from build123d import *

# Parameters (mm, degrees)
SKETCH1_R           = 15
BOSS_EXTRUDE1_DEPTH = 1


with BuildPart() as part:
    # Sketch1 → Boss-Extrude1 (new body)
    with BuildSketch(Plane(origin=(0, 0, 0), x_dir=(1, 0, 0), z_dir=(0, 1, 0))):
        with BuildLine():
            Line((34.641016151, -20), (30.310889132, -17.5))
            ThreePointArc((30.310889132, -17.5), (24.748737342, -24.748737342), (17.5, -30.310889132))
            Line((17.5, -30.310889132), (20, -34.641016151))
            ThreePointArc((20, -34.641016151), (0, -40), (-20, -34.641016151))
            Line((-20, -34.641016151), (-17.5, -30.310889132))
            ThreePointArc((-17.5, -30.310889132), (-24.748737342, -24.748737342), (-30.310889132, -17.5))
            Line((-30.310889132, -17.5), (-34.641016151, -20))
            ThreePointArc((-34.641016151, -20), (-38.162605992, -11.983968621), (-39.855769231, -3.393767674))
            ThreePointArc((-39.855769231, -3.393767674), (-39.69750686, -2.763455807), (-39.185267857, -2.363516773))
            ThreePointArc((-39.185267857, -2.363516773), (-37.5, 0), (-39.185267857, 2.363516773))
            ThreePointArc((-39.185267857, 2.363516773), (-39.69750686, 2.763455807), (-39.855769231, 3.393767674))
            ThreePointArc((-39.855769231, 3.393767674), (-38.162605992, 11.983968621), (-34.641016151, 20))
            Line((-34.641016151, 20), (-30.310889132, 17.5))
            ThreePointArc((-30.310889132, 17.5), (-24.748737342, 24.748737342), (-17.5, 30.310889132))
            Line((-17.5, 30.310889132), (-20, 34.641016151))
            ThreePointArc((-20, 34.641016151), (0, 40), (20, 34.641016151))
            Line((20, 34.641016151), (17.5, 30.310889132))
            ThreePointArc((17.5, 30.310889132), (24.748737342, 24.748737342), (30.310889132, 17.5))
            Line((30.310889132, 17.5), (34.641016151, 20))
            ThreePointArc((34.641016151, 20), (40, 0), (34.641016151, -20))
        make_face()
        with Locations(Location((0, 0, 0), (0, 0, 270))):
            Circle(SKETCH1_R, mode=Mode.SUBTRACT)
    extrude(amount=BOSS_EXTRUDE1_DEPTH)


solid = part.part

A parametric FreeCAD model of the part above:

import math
import FreeCAD as App
import Part
import Sketcher

V = App.Vector
Q = App.Units.Quantity

doc = App.newDocument("Part")
body = doc.addObject("PartDesign::Body", "Body")

# Sketch on XZ plane
sketch1 = doc.addObject("Sketcher::SketchObject", "Sketch")
body.addObject(sketch1)
sketch1.AttachmentSupport = (doc.XZ_Plane, [""])
sketch1.MapMode = "FlatFace"
sketch1.addGeometry([
    Part.LineSegment(V(30.310889, 17.5, 0), V(34.641016, 20, 0)),  # 0
    Part.ArcOfCircle(Part.Circle(V(0, 0, 0), V(0, 0, 1), 40), math.radians(-30), math.radians(30)),  # 1
    Part.LineSegment(V(34.641016, -20, 0), V(30.310889, -17.5, 0)),  # 2
    Part.ArcOfCircle(Part.Circle(V(0, 0, 0), V(0, 0, 1), 35), math.radians(-60), math.radians(-30)),  # 3
    Part.LineSegment(V(17.5, -30.310889, 0), V(20, -34.641016, 0)),  # 4
    Part.ArcOfCircle(Part.Circle(V(0, 0, 0), V(0, 0, 1), 40), math.radians(-120), math.radians(-60)),  # 5
    Part.LineSegment(V(-20, -34.641016, 0), V(-17.5, -30.310889, 0)),  # 6
    Part.ArcOfCircle(Part.Circle(V(0, 0, 0), V(0, 0, 1), 35), math.radians(-150), math.radians(-120)),  # 7
    Part.LineSegment(V(-30.310889, -17.5, 0), V(-34.641016, -20, 0)),  # 8
    Part.ArcOfCircle(Part.Circle(V(0, 0, 0), V(0, 0, 1), 40), math.radians(-175.132935), math.radians(-150)),  # 9
    Part.ArcOfCircle(Part.Circle(V(-38.859375, -3.308923, 0), V(0, 0, 1), 1), math.radians(109.019677), math.radians(184.867065)),  # 10
    Part.ArcOfCircle(Part.Circle(V(-40, 0, 0), V(0, 0, 1), 2.5), math.radians(-70.980323), math.radians(70.980323)),  # 11
    Part.ArcOfCircle(Part.Circle(V(-38.859375, 3.308923, 0), V(0, 0, 1), 1), math.radians(175.132935), math.radians(250.980323)),  # 12
    Part.ArcOfCircle(Part.Circle(V(0, 0, 0), V(0, 0, 1), 40), math.radians(150), math.radians(175.132935)),  # 13
    Part.LineSegment(V(-34.641016, 20, 0), V(-30.310889, 17.5, 0)),  # 14
    Part.ArcOfCircle(Part.Circle(V(0, 0, 0), V(0, 0, 1), 35), math.radians(120), math.radians(150)),  # 15
    Part.LineSegment(V(-17.5, 30.310889, 0), V(-20, 34.641016, 0)),  # 16
    Part.ArcOfCircle(Part.Circle(V(0, 0, 0), V(0, 0, 1), 40), math.radians(60), math.radians(120)),  # 17
    Part.LineSegment(V(20, 34.641016, 0), V(17.5, 30.310889, 0)),  # 18
    Part.ArcOfCircle(Part.Circle(V(0, 0, 0), V(0, 0, 1), 35), math.radians(30), math.radians(60)),  # 19
    Part.Circle(V(0, 0, 0), V(0, 0, 1), 15),  # 20
], False)
sketch1.addConstraint([
    Sketcher.Constraint("Coincident", 0, 2, 1, 2),
    Sketcher.Constraint("Coincident", 1, 1, 2, 1),
    Sketcher.Constraint("Coincident", 2, 2, 3, 2),
    Sketcher.Constraint("Coincident", 3, 1, 4, 1),
    Sketcher.Constraint("Coincident", 4, 2, 5, 2),
    Sketcher.Constraint("Coincident", 5, 1, 6, 1),
    Sketcher.Constraint("Coincident", 6, 2, 7, 2),
    Sketcher.Constraint("Coincident", 7, 1, 8, 1),
    Sketcher.Constraint("Coincident", 8, 2, 9, 2),
    Sketcher.Constraint("Tangent", 9, 1, 10, 2),
    Sketcher.Constraint("Tangent", 10, 1, 11, 1),
    Sketcher.Constraint("Tangent", 11, 2, 12, 2),
    Sketcher.Constraint("Tangent", 12, 1, 13, 2),
    Sketcher.Constraint("Coincident", 13, 1, 14, 1),
    Sketcher.Constraint("Coincident", 14, 2, 15, 2),
    Sketcher.Constraint("Coincident", 15, 1, 16, 1),
    Sketcher.Constraint("Coincident", 16, 2, 17, 2),
    Sketcher.Constraint("Coincident", 17, 1, 18, 1),
    Sketcher.Constraint("Coincident", 18, 2, 19, 2),
    Sketcher.Constraint("Coincident", 19, 1, 0, 1),
    Sketcher.Constraint("Coincident", 1, 3, -1, 1),
    Sketcher.Constraint("Coincident", 3, 3, -1, 1),
    Sketcher.Constraint("Coincident", 5, 3, -1, 1),
    Sketcher.Constraint("Coincident", 7, 3, -1, 1),
    Sketcher.Constraint("Coincident", 9, 3, -1, 1),
    Sketcher.Constraint("Coincident", 13, 3, -1, 1),
    Sketcher.Constraint("Coincident", 15, 3, -1, 1),
    Sketcher.Constraint("Coincident", 17, 3, -1, 1),
    Sketcher.Constraint("Coincident", 19, 3, -1, 1),
    Sketcher.Constraint("Coincident", 20, 3, -1, 1),
    Sketcher.Constraint("Equal", 1, 5),
    Sketcher.Constraint("Equal", 3, 7),
    Sketcher.Constraint("Equal", 5, 9),
    Sketcher.Constraint("Equal", 10, 12),
    Sketcher.Constraint("Equal", 9, 13),
    Sketcher.Constraint("Equal", 7, 15),
    Sketcher.Constraint("Equal", 13, 17),
    Sketcher.Constraint("Equal", 15, 19),
    Sketcher.Constraint("PointOnObject", 11, 3, -1),
    Sketcher.Constraint("Perpendicular", 0, 4),
    Sketcher.Constraint("Perpendicular", 2, 6),
    Sketcher.Constraint("Perpendicular", 4, 8),
    Sketcher.Constraint("Perpendicular", 6, 14),
    Sketcher.Constraint("Perpendicular", 8, 16),
    Sketcher.Constraint("Perpendicular", 14, 18),
    Sketcher.Constraint("Horizontal", 4, 2, 5, 1),
    Sketcher.Constraint("Horizontal", 3, 1, 6, 2),
    Sketcher.Constraint("Horizontal", 2, 2, 7, 1),
    Sketcher.Constraint("Horizontal", 0, 2, 13, 1),
    Sketcher.Constraint("Horizontal", 16, 2, 17, 1),
    Sketcher.Constraint("Vertical", 0, 2, 1, 1),
    Sketcher.Constraint("Vertical", 6, 2, 15, 1),
    Sketcher.Constraint("Diameter", 20, Q("30 mm")),
    Sketcher.Constraint("Radius", 1, Q("40 mm")),
    Sketcher.Constraint("Radius", 3, Q("35 mm")),
    Sketcher.Constraint("Radius", 10, Q("1 mm")),
    Sketcher.Constraint("Radius", 11, Q("2.5 mm")),
    Sketcher.Constraint("Angle", 0, Q("30 deg")),
    Sketcher.Constraint("DistanceX", 11, 3, -1, 1, Q("40 mm")),
    Sketcher.Constraint("DistanceY", -1, 1, 0, 2, Q("20 mm")),
    Sketcher.Constraint("DistanceX", -1, 1, 4, 2, Q("20 mm")),
])
pad1 = doc.addObject("PartDesign::Pad", "Pad")
body.addObject(pad1)
pad1.Profile = sketch1
pad1.Length = 1
pad1.Reversed = True

doc.recompute()
